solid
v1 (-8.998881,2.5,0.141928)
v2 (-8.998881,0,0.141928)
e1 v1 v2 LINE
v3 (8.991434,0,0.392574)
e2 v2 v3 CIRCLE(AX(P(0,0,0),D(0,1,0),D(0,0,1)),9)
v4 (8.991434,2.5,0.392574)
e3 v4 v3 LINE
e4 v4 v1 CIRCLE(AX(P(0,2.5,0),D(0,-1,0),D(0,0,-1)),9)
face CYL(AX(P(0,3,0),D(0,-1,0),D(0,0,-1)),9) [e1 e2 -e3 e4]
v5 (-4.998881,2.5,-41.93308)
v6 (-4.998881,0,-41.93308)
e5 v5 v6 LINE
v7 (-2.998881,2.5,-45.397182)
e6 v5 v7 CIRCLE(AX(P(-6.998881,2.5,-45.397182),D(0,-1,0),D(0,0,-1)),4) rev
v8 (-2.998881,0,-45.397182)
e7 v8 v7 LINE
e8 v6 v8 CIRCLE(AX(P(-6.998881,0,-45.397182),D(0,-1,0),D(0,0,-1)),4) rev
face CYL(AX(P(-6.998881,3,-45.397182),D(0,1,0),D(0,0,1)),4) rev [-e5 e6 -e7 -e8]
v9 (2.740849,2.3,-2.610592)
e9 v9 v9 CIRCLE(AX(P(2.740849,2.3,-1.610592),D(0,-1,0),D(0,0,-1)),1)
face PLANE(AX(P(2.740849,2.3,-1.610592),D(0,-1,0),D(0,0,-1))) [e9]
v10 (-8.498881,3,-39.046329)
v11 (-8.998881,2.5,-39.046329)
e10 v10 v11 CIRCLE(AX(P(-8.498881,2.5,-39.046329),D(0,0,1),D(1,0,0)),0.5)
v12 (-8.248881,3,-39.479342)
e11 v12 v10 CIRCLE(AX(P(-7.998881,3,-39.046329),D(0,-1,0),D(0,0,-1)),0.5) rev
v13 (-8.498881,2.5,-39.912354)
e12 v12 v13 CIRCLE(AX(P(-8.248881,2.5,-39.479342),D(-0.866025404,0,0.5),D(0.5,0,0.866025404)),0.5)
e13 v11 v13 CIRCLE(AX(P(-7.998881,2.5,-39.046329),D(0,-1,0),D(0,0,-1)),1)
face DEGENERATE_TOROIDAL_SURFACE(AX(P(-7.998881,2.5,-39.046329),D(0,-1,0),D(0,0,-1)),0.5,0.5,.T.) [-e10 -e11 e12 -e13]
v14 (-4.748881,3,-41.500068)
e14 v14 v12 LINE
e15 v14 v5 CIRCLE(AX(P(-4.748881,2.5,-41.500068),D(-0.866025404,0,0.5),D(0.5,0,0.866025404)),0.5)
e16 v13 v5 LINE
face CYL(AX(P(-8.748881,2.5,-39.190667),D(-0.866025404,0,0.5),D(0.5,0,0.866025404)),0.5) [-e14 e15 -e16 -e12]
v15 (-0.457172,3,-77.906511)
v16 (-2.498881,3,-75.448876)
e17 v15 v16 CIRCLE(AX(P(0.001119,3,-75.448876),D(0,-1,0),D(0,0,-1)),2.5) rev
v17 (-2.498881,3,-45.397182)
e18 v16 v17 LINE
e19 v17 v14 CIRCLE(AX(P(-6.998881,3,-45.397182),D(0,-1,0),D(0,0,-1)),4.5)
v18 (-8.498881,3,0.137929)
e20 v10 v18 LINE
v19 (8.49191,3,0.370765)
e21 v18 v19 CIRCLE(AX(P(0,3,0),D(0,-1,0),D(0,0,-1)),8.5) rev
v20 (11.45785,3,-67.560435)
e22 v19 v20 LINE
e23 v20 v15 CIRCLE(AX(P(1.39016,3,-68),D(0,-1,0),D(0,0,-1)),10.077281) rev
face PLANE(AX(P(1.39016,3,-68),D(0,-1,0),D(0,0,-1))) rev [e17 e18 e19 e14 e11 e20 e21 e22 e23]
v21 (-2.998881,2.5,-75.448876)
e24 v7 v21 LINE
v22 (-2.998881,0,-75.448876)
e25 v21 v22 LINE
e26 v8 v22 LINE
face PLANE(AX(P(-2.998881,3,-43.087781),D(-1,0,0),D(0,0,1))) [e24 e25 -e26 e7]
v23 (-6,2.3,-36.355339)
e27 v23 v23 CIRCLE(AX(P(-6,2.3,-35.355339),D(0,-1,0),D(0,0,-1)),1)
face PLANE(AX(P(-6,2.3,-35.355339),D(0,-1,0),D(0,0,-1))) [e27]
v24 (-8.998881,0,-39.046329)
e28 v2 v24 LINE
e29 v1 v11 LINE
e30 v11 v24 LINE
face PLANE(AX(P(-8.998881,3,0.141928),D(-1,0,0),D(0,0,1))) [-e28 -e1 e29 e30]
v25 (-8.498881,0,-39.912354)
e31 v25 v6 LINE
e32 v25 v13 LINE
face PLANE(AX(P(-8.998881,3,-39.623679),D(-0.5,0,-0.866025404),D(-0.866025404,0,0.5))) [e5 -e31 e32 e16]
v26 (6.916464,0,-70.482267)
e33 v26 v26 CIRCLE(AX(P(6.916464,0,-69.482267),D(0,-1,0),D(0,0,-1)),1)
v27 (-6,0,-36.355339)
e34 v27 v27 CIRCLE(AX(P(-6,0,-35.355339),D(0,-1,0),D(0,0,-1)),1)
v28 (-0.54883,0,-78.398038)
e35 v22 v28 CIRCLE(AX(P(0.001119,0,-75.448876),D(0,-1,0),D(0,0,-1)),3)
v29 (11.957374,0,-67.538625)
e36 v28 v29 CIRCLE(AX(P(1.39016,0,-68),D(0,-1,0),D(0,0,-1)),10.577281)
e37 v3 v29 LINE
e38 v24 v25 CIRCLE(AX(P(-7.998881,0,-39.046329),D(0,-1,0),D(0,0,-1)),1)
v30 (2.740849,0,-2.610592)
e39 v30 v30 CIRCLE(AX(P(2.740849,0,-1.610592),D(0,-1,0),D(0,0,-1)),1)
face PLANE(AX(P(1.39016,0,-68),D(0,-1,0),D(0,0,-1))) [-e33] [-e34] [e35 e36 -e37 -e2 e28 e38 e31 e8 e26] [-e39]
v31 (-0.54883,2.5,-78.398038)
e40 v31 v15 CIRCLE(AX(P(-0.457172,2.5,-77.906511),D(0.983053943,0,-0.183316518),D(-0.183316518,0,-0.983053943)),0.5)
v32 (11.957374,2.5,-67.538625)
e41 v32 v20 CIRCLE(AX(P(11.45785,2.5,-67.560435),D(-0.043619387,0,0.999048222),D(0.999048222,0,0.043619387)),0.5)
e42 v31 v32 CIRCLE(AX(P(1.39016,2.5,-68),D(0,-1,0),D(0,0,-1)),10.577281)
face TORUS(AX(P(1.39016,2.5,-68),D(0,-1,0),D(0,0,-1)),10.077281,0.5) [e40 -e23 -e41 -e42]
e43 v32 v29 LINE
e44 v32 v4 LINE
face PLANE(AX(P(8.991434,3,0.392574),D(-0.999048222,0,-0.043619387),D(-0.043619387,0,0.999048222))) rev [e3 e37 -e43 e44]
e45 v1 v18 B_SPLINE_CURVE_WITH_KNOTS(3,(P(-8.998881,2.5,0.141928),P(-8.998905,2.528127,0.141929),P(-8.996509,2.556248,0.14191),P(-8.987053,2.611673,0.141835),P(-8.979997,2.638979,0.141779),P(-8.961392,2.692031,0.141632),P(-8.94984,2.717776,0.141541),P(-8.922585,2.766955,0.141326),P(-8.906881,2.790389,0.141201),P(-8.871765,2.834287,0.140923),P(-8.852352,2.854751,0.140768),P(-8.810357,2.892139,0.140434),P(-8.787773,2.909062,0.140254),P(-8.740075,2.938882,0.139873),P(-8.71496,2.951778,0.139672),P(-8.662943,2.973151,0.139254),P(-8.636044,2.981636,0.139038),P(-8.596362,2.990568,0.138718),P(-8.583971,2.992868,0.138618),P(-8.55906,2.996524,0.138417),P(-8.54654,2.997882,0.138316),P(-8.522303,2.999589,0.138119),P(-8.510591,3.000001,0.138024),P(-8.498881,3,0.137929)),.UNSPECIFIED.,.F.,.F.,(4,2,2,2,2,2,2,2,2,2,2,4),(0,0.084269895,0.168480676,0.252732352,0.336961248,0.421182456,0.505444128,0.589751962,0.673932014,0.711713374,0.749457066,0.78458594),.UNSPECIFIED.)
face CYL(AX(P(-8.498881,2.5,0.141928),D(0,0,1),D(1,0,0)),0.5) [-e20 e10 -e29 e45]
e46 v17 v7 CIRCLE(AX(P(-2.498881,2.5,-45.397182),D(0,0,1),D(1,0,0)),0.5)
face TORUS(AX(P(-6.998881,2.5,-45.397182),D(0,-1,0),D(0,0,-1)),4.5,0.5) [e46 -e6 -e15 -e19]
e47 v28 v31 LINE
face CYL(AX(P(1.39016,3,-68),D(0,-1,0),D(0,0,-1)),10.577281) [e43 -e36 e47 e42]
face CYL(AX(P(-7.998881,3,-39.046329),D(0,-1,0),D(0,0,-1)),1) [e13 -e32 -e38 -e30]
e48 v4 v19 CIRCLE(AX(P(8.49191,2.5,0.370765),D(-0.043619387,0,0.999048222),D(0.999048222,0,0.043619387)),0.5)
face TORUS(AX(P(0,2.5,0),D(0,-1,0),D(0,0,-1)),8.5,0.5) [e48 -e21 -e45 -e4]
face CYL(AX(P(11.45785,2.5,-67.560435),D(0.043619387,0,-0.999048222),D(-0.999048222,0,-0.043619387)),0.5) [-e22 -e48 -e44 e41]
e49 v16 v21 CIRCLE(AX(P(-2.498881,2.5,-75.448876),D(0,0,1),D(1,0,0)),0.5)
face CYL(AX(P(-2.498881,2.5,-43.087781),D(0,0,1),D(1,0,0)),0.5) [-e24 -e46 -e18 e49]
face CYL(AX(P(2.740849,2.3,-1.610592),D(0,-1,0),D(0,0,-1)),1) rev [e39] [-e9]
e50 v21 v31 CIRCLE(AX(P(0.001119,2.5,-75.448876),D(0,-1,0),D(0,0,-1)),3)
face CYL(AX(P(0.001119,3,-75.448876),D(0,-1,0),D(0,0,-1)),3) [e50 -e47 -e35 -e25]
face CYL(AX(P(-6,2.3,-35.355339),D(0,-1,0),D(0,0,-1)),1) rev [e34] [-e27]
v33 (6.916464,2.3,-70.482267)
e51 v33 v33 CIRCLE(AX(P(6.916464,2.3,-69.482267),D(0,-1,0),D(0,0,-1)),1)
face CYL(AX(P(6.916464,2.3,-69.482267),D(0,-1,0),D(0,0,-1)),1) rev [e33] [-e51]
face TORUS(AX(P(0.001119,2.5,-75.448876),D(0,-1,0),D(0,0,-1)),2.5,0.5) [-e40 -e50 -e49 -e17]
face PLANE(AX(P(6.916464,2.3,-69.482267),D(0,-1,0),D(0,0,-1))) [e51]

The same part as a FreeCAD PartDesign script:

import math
import FreeCAD as App
import Part
import Sketcher

V = App.Vector
Q = App.Units.Quantity


def edges_at(feature, points):
    """Names of the edges that pass closest to the given points."""
    edges = feature.Shape.Edges
    near = lambda p: min(range(len(edges)), key=lambda i: edges[i].distToShape(Part.Vertex(*p))[0])
    return sorted({f"Edge{near(p) + 1}" for p in points})

doc = App.newDocument("Part")
body = doc.addObject("PartDesign::Body", "Body")

# Sketch on XZ plane
sketch1 = doc.addObject("Sketcher::SketchObject", "Sketch")
body.addObject(sketch1)
sketch1.AttachmentSupport = (doc.XZ_Plane, [""])
sketch1.MapMode = "FlatFace"
sketch1.addGeometry([
    Part.LineSegment(V(9, 0, 0), V(12, -68, 0)),  # 0
    Part.ArcOfCircle(Part.Circle(V(1, -68, 0), V(0, 0, 1), 11), math.radians(-115), math.radians(3)),  # 1
    Part.LineSegment(V(-3, -78, 0), V(-3, -43, 0)),  # 2
    Part.LineSegment(V(-3, -43, 0), V(-9, -40, 0)),  # 3
    Part.LineSegment(V(-9, -40, 0), V(-9, 0, 0)),  # 4
    Part.ArcOfCircle(Part.Circle(V(0, 0, 0), V(0, 0, 1), 9), math.radians(2), math.radians(179)),  # 5
], False)
sketch1.addConstraint([
    Sketcher.Constraint("Tangent", 0, 2, 1, 2),
    Sketcher.Constraint("Coincident", 1, 1, 2, 1),
    Sketcher.Constraint("Coincident", 2, 2, 3, 1),
    Sketcher.Constraint("Coincident", 3, 2, 4, 1),
    Sketcher.Constraint("Coincident", 4, 2, 5, 2),
    Sketcher.Constraint("Tangent", 5, 1, 0, 1),
    Sketcher.Constraint("Vertical", 2),
    Sketcher.Constraint("Vertical", 4),
    Sketcher.Constraint("Coincident", 5, 3, -1, 1),
    Sketcher.Constraint("Radius", 5, Q("9 mm")),
    Sketcher.Constraint("Angle", 3, Q("150 deg")),
    Sketcher.Constraint("DistanceY", 1, 3, -1, 1, Q("68 mm")),
    Sketcher.Constraint("Angle", 0, Q("-87.5 deg")),
    Sketcher.Constraint("DistanceX", 3, 2, 2, 2, Q("6 mm")),
    Sketcher.Constraint("DistanceY", 1, 1, 3, 2, Q("38 mm")),
    Sketcher.Constraint("Radius", 1, Q("10.577281 mm")),
    Sketcher.Constraint("DistanceY", 4, 1, 4, 2, Q("39.765608 mm")),
])
pad1 = doc.addObject("PartDesign::Pad", "Pad")
body.addObject(pad1)
pad1.Profile = sketch1
pad1.Length = 3
pad1.Reversed = True
doc.recompute()

fillet = doc.addObject("PartDesign::Fillet", "Fillet")
body.addObject(fillet)
fillet.Base = (pad1, edges_at(pad1, [(-2.999, 1.5, -43.088)]))
fillet.Radius = 4
doc.recompute()

fillet2 = doc.addObject("PartDesign::Fillet", "Fillet001")
body.addObject(fillet2)
fillet2.Base = (fillet, edges_at(fillet, [(-2.999, 1.5, -77.624)]))
fillet2.Radius = 3
doc.recompute()

fillet3 = doc.addObject("PartDesign::Fillet", "Fillet002")
body.addObject(fillet3)
fillet3.Base = (fillet2, edges_at(fillet2, [(-8.999, 1.5, -39.624)]))
fillet3.Radius = 1
doc.recompute()

fillet4 = doc.addObject("PartDesign::Fillet", "Fillet003")
body.addObject(fillet4)
fillet4.Base = (fillet3, edges_at(fillet3, [
    (10.474, 3, -33.573),
    (-0.125, 3, 8.999),
    (-8.999, 3, -19.452),
    (-2.999, 3, -60.423),
    (-3.535, 3, -43.397),
    (8.325, 3, -75.987),
    (-2.306, 3, -77.366),
    (-6.749, 3, -40.923),
    (-8.865, 3, -39.546),
]))
fillet4.Radius = 0.5

# Sketch on XZ plane
sketch2 = doc.addObject("Sketcher::SketchObject", "Sketch001")
body.addObject(sketch2)
sketch2.AttachmentSupport = (doc.XZ_Plane, [""])
sketch2.MapMode = "FlatFace"
sketch2.addGeometry([
    Part.Circle(V(6.9, -69.5, 0), V(0, 0, 1), 1),
    Part.Circle(V(2.7, -1.6, 0), V(0, 0, 1), 1),
    Part.Circle(V(-6, -35.4, 0), V(0, 0, 1), 1),
], False)
sketch2.addConstraint([
    Sketcher.Constraint("Equal", 0, 1),
    Sketcher.Constraint("Equal", 1, 2),
    Sketcher.Constraint("Diameter", 0, Q("2 mm")),
    Sketcher.Constraint("DistanceX", 2, 3, -1, 1, Q("6 mm")),
    Sketcher.Constraint("DistanceX", -1, 1, 1, 3, Q("2.740849 mm")),
    Sketcher.Constraint("DistanceY", 1, 3, -1, 1, Q("1.610592 mm")),
    Sketcher.Constraint("DistanceY", 2, 3, -1, 1, Q("35.355339 mm")),
    Sketcher.Constraint("DistanceX", -1, 1, 0, 3, Q("6.916464 mm")),
    Sketcher.Constraint("DistanceY", 0, 3, -1, 1, Q("69.482267 mm")),
])
pocket1 = doc.addObject("PartDesign::Pocket", "Pocket")
body.addObject(pocket1)
pocket1.Profile = sketch2
pocket1.Length = 2.3

doc.recompute()
